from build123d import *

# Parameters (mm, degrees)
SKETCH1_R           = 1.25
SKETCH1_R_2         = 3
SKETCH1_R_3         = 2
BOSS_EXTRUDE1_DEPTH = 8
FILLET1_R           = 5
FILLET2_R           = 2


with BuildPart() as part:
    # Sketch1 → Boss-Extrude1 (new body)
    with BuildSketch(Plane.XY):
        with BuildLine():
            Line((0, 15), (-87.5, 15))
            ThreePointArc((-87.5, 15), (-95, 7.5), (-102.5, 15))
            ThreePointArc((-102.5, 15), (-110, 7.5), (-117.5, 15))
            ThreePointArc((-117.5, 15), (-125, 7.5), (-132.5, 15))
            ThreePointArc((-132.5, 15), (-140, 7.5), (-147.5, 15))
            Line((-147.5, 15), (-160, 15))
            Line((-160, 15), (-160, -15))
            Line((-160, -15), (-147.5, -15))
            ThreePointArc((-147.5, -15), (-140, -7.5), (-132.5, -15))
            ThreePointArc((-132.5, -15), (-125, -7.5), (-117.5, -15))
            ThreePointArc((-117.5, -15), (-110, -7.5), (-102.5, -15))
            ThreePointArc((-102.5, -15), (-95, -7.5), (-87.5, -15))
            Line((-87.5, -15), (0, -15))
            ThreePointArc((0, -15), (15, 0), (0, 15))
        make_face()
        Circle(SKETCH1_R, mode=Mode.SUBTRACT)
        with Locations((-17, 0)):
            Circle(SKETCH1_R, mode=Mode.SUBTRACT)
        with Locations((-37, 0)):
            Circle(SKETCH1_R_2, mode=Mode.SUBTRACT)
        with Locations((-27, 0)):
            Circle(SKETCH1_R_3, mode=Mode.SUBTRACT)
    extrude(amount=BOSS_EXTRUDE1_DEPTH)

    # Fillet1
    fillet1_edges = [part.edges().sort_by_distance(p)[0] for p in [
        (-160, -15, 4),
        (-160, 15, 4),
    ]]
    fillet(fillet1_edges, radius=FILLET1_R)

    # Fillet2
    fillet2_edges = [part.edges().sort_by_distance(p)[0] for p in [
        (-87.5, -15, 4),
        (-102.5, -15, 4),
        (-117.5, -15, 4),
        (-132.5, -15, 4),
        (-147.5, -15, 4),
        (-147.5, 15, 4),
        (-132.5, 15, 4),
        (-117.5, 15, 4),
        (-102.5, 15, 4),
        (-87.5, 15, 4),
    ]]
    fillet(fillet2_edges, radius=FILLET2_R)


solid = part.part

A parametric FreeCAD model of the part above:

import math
import FreeCAD as App
import Part
import Sketcher
from FreeCAD import Vector
Q = App.Units.Quantity


def edges_at(feature, points):
    """Names of the edges that pass closest to the given points."""
    edges = feature.Shape.Edges
    near = lambda p: min(range(len(edges)), key=lambda i: edges[i].distToShape(Part.Vertex(*p))[0])
    return sorted({f"Edge{near(p) + 1}" for p in points})

doc = App.newDocument("Part")
params = doc.addObject("Spreadsheet::Sheet", "Params")
for row, (alias, value) in enumerate([
    ("sketch1_diameter", "6 mm"),
    ("sketch1_diameter2", "4 mm"),
    ("sketch1_radius", "15 mm"),
    ("sketch1_diameter3", "2.5 mm"),
    ("sketch1_radius2", "7.5 mm"),
    ("pad1_length", "8 mm"),
    ("fillet_radius", "5 mm"),
    ("fillet2_radius", "2 mm"),
], start=1):
    params.set(f"A{row}", alias)
    params.set(f"B{row}", "=" + value)
    params.setAlias(f"B{row}", alias)

body = doc.addObject("PartDesign::Body", "Body")

# Sketch on XY plane
sketch1 = body.newObject("Sketcher::SketchObject", "Sketch")
sketch1.AttachmentSupport = (doc.getObject("XY_Plane"), [""])
sketch1.MapMode = "FlatFace"
sketch1.addGeometry(Part.LineSegment(Vector(0, 15, 0), Vector(-87.5, 15, 0)), False)
sketch1.addGeometry(Part.ArcOfCircle(Part.Circle(Vector(-95, 15, 0), Vector(0, 0, 1), 7.5), math.radians(180), math.radians(360)), False)
sketch1.addGeometry(Part.ArcOfCircle(Part.Circle(Vector(-110, 15, 0), Vector(0, 0, 1), 7.5), math.radians(180), math.radians(360)), False)
sketch1.addGeometry(Part.ArcOfCircle(Part.Circle(Vector(-125, 15, 0), Vector(0, 0, 1), 7.5), math.radians(180), math.radians(360)), False)
sketch1.addGeometry(Part.ArcOfCircle(Part.Circle(Vector(-140, 15, 0), Vector(0, 0, 1), 7.5), math.radians(180), math.radians(360)), False)
sketch1.addGeometry(Part.LineSegment(Vector(-147.5, 15, 0), Vector(-160, 15, 0)), False)
sketch1.addGeometry(Part.LineSegment(Vector(-160, 15, 0), Vector(-160, -15, 0)), False)
sketch1.addGeometry(Part.LineSegment(Vector(-160, -15, 0), Vector(-147.5, -15, 0)), False)
sketch1.addGeometry(Part.ArcOfCircle(Part.Circle(Vector(-140, -15, 0), Vector(0, 0, 1), 7.5), math.radians(0), math.radians(180)), False)
sketch1.addGeometry(Part.ArcOfCircle(Part.Circle(Vector(-125, -15, 0), Vector(0, 0, 1), 7.5), math.radians(0), math.radians(180)), False)
sketch1.addGeometry(Part.ArcOfCircle(Part.Circle(Vector(-110, -15, 0), Vector(0, 0, 1), 7.5), math.radians(0), math.radians(180)), False)
sketch1.addGeometry(Part.ArcOfCircle(Part.Circle(Vector(-95, -15, 0), Vector(0, 0, 1), 7.5), math.radians(0), math.radians(180)), False)
sketch1.addGeometry(Part.LineSegment(Vector(-87.5, -15, 0), Vector(0, -15, 0)), False)
sketch1.addGeometry(Part.ArcOfCircle(Part.Circle(Vector(0, 0, 0), Vector(0, 0, 1), 15), math.radians(-90), math.radians(90)), False)
sketch1.addGeometry(Part.Circle(Vector(-37, 0, 0), Vector(0, 0, 1), 3), False)
sketch1.addGeometry(Part.Circle(Vector(-27, 0, 0), Vector(0, 0, 1), 2), False)
sketch1.addGeometry(Part.Circle(Vector(-17, 0, 0), Vector(0, 0, 1), 1.2), False)
sketch1.addGeometry(Part.Circle(Vector(0, 0, 0), Vector(0, 0, 1), 1.2), False)
sketch1.addConstraint(Sketcher.Constraint("Coincident", 0, 2, 1, 2))
sketch1.addConstraint(Sketcher.Constraint("Tangent", 1, 1, 2, 2))
sketch1.addConstraint(Sketcher.Constraint("Tangent", 2, 1, 3, 2))
sketch1.addConstraint(Sketcher.Constraint("Tangent", 3, 1, 4, 2))
sketch1.addConstraint(Sketcher.Constraint("Coincident", 4, 1, 5, 1))
sketch1.addConstraint(Sketcher.Constraint("Coincident", 5, 2, 6, 1))
sketch1.addConstraint(Sketcher.Constraint("Coincident", 6, 2, 7, 1))
sketch1.addConstraint(Sketcher.Constraint("Coincident", 7, 2, 8, 2))
sketch1.addConstraint(Sketcher.Constraint("Tangent", 8, 1, 9, 2))
sketch1.addConstraint(Sketcher.Constraint("Tangent", 9, 1, 10, 2))
sketch1.addConstraint(Sketcher.Constraint("Tangent", 10, 1, 11, 2))
sketch1.addConstraint(Sketcher.Constraint("Coincident", 11, 1, 12, 1))
sketch1.addConstraint(Sketcher.Constraint("Tangent", 12, 2, 13, 1))
sketch1.addConstraint(Sketcher.Constraint("Tangent", 13, 2, 0, 1))
sketch1.addConstraint(Sketcher.Constraint("Horizontal", 0))
sketch1.addConstraint(Sketcher.Constraint("Horizontal", 5))
sketch1.addConstraint(Sketcher.Constraint("Vertical", 6))
sketch1.addConstraint(Sketcher.Constraint("Horizontal", 7))
sketch1.addConstraint(Sketcher.Constraint("Horizontal", 12))
sketch1.addConstraint(Sketcher.Constraint("Coincident", 13, 3, -1, 1))
sketch1.addConstraint(Sketcher.Constraint("Coincident", 17, 3, -1, 1))
sketch1.addConstraint(Sketcher.Constraint("Equal", 1, 2))
sketch1.addConstraint(Sketcher.Constraint("Equal", 2, 3))
sketch1.addConstraint(Sketcher.Constraint("Equal", 3, 4))
sketch1.addConstraint(Sketcher.Constraint("Equal", 4, 8))
sketch1.addConstraint(Sketcher.Constraint("Equal", 8, 9))
sketch1.addConstraint(Sketcher.Constraint("Equal", 9, 10))
sketch1.addConstraint(Sketcher.Constraint("Equal", 10, 11))
sketch1.addConstraint(Sketcher.Constraint("Equal", 16, 17))
sketch1.addConstraint(Sketcher.Constraint("Symmetric", 4, 3, 8, 3, -1))
sketch1.addConstraint(Sketcher.Constraint("PointOnObject", 14, 3, -1))
sketch1.addConstraint(Sketcher.Constraint("PointOnObject", 15, 3, -1))
sketch1.addConstraint(Sketcher.Constraint("PointOnObject", 16, 3, -1))
sketch1.addConstraint(Sketcher.Constraint("Horizontal", 1, 3, 2, 3))
sketch1.addConstraint(Sketcher.Constraint("Horizontal", 2, 3, 3, 3))
sketch1.addConstraint(Sketcher.Constraint("Horizontal", 3, 3, 4, 3))
sketch1.addConstraint(Sketcher.Constraint("Horizontal", 8, 3, 9, 3))
sketch1.addConstraint(Sketcher.Constraint("Horizontal", 9, 3, 10, 3))
sketch1.addConstraint(Sketcher.Constraint("Horizontal", 10, 3, 11, 3))
sketch1.addConstraint(Sketcher.Constraint("Horizontal", 4, 3, 0, 2))
sketch1.addConstraint(Sketcher.Constraint("Horizontal", 3, 1, 4, 1))
sketch1.addConstraint(Sketcher.Constraint("Horizontal", 11, 3, 6, 2))
sketch1.addConstraint(Sketcher.Constraint("Diameter", 14, Q("6 mm")))
sketch1.addConstraint(Sketcher.Constraint("Diameter", 15, Q("4 mm")))
sketch1.addConstraint(Sketcher.Constraint("Radius", 13, Q("15 mm")))
sketch1.addConstraint(Sketcher.Constraint("Diameter", 16, Q("2.5 mm")))
sketch1.addConstraint(Sketcher.Constraint("Radius", 1, Q("7.5 mm")))
sketch1.addConstraint(Sketcher.Constraint("DistanceX", 0, 2, 0, 1, Q("87.5 mm")))
sketch1.addConstraint(Sketcher.Constraint("DistanceX", 5, 2, 5, 1, Q("12.5 mm")))
sketch1.addConstraint(Sketcher.Constraint("DistanceX", 14, 3, -1, 1, Q("37 mm")))
sketch1.addConstraint(Sketcher.Constraint("DistanceX", 15, 3, -1, 1, Q("27 mm")))
sketch1.addConstraint(Sketcher.Constraint("DistanceX", 16, 3, -1, 1, Q("17 mm")))
sketch1.setExpression("Constraints[42]", "Params.sketch1_diameter")
sketch1.setExpression("Constraints[43]", "Params.sketch1_diameter2")
sketch1.setExpression("Constraints[44]", "Params.sketch1_radius")
sketch1.setExpression("Constraints[45]", "Params.sketch1_diameter3")
sketch1.setExpression("Constraints[46]", "Params.sketch1_radius2")
pad1 = body.newObject("PartDesign::Pad", "Pad")
pad1.Profile = sketch1
pad1.setExpression("Length", "Params.pad1_length")
doc.recompute()

fillet = body.newObject("PartDesign::Fillet", "Fillet")
fillet.Base = (pad1, edges_at(pad1, [(-160, -15, 4), (-160, 15, 4)]))
fillet.setExpression("Radius", "Params.fillet_radius")
doc.recompute()

fillet2 = body.newObject("PartDesign::Fillet", "Fillet001")
fillet2.Base = (fillet, edges_at(fillet, [
    (-87.5, -15, 4),
    (-102.5, -15, 4),
    (-117.5, -15, 4),
    (-132.5, -15, 4),
    (-147.5, -15, 4),
    (-147.5, 15, 4),
    (-132.5, 15, 4),
    (-117.5, 15, 4),
    (-102.5, 15, 4),
    (-87.5, 15, 4),
]))
fillet2.setExpression("Radius", "Params.fillet2_radius")

doc.recompute()
